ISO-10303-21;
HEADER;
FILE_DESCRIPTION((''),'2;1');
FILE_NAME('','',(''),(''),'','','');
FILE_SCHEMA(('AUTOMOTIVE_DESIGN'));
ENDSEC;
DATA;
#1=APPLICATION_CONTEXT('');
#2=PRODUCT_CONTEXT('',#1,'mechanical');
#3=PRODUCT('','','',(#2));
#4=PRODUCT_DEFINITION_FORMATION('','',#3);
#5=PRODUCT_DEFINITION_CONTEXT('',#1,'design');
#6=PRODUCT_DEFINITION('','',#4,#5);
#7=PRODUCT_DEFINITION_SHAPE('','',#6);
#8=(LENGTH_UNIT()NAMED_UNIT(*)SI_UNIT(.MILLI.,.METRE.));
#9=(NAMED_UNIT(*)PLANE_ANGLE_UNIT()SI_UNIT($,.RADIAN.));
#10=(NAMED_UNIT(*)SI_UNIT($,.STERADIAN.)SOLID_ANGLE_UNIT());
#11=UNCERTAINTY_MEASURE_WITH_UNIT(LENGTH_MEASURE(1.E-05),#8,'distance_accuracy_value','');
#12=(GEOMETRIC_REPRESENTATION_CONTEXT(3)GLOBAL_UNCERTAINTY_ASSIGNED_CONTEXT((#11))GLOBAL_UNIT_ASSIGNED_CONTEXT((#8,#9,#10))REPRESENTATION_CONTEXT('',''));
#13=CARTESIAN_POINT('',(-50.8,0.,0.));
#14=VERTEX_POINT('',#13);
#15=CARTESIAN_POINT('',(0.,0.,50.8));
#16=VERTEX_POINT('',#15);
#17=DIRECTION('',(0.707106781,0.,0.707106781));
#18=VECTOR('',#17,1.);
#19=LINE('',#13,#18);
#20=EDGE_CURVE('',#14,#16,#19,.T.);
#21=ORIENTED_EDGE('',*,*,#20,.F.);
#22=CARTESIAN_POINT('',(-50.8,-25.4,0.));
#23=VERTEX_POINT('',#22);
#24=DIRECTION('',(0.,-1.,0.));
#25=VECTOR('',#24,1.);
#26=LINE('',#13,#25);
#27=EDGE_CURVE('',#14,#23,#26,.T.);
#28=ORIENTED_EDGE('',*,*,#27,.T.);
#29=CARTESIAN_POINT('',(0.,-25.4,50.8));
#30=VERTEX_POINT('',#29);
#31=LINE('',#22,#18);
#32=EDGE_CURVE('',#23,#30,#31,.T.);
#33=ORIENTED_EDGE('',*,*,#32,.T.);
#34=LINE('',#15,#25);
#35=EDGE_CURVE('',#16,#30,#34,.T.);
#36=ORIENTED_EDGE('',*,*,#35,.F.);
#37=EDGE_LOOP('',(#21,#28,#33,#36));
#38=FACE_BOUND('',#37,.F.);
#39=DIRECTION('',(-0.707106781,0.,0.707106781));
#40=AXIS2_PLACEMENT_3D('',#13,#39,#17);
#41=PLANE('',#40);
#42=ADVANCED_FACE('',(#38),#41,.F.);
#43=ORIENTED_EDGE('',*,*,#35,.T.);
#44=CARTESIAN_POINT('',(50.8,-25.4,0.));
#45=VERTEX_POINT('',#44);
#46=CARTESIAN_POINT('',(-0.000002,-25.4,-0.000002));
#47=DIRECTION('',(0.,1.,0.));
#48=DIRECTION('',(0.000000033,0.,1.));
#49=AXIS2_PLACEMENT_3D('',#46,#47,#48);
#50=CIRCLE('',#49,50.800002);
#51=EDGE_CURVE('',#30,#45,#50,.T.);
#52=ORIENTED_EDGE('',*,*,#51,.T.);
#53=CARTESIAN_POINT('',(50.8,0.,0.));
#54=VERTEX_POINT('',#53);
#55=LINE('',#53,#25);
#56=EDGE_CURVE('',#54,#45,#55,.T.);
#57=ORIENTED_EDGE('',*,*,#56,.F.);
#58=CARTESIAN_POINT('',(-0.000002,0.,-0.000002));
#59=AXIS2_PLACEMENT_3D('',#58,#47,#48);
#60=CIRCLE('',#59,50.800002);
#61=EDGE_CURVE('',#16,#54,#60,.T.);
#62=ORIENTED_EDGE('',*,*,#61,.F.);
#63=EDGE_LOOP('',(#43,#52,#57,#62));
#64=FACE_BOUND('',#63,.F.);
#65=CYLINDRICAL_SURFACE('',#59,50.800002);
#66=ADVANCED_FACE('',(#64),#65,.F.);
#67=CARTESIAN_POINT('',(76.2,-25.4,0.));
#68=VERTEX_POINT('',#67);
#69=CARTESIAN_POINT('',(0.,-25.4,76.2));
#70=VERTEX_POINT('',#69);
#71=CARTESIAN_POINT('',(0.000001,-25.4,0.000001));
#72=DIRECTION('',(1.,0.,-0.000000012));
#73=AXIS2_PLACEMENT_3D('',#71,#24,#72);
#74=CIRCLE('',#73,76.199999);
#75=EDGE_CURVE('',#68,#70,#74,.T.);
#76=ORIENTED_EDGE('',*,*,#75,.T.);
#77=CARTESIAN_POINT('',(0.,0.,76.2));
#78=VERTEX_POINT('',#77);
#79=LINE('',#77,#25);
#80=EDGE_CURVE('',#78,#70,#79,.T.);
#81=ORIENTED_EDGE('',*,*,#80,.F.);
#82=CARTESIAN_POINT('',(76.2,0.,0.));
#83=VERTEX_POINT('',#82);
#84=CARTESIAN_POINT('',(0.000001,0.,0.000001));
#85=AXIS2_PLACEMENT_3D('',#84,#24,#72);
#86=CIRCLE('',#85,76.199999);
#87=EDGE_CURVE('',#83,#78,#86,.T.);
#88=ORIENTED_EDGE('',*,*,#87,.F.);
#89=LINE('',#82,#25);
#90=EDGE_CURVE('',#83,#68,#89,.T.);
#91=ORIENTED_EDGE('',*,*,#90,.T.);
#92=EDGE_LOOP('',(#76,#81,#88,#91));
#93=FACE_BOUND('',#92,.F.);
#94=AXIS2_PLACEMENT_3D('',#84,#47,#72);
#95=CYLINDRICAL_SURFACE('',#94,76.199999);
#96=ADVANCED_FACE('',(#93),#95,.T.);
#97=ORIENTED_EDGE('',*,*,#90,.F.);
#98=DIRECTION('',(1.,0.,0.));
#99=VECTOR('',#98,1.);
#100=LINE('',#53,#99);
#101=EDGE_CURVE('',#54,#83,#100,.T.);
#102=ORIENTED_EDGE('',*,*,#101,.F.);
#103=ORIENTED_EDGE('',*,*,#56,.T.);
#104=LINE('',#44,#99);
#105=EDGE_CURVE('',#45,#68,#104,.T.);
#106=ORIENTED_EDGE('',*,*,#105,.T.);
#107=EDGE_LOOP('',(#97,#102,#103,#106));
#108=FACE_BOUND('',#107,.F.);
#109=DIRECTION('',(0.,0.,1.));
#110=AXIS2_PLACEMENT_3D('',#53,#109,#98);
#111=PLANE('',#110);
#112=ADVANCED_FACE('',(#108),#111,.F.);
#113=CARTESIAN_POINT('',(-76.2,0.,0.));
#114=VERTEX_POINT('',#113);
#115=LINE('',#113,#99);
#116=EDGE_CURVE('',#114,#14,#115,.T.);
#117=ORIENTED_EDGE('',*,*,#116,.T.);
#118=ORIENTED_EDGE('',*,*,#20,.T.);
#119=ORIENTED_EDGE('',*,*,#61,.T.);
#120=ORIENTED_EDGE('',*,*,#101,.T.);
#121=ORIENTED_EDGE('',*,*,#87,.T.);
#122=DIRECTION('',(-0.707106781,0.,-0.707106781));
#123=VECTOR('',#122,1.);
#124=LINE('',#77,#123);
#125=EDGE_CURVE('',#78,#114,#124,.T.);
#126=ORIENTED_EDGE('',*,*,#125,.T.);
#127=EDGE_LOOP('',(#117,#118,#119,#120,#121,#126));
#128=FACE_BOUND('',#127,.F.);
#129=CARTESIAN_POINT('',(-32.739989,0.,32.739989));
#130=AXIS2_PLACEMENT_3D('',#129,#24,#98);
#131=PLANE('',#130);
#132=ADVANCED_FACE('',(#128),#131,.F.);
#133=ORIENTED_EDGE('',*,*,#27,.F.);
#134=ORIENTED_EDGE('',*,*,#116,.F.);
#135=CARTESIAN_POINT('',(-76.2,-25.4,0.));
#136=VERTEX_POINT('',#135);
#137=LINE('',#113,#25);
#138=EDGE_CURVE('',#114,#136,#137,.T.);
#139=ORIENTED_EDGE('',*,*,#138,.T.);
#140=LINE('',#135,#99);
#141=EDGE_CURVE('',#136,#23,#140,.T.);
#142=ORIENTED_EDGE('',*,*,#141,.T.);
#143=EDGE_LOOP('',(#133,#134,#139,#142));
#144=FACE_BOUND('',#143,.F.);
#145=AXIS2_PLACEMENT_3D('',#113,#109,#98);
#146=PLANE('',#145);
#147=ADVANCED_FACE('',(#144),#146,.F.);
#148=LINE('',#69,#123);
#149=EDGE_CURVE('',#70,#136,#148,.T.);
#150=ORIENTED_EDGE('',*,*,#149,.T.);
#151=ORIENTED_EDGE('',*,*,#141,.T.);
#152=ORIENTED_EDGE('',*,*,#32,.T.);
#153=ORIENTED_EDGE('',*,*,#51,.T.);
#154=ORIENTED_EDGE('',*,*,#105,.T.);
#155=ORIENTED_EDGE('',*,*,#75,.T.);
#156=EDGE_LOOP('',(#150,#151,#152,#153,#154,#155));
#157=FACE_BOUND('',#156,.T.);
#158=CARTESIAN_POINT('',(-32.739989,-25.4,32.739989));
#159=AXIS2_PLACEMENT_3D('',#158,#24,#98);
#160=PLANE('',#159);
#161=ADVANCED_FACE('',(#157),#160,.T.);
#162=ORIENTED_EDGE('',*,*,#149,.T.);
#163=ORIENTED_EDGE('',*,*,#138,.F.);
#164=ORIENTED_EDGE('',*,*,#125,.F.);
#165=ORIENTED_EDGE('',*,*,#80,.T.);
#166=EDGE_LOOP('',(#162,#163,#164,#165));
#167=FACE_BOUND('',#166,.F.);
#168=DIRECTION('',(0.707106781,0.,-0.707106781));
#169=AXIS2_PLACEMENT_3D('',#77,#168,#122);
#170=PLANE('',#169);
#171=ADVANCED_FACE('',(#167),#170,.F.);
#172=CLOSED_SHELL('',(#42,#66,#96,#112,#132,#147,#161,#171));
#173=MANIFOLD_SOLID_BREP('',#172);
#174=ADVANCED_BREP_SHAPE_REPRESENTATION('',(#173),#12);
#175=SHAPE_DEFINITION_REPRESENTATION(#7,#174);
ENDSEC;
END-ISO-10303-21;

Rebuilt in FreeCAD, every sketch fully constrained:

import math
import FreeCAD as App
import Part
import Sketcher
Q = App.Units.Quantity

doc = App.newDocument("Part")
body = doc.addObject("PartDesign::Body", "Body")

# Sketch on XZ plane
sketch1 = doc.addObject("Sketcher::SketchObject", "Sketch")
body.addObject(sketch1)
sketch1.AttachmentSupport = (doc.XZ_Plane, [""])
sketch1.MapMode = "FlatFace"
sketch1.addGeometry([
    Part.LineSegment(App.Vector(-50.8, 0, 0), App.Vector(0, 50.8, 0)),  # 0
    Part.ArcOfCircle(Part.Circle(App.Vector(-0.000002, -0.000002, 0), App.Vector(0, 0, 1), 50.800002), math.radians(0.000002), math.radians(89.999998)),  # 1
    Part.LineSegment(App.Vector(50.8, 0, 0), App.Vector(76.2, 0, 0)),  # 2
    Part.ArcOfCircle(Part.Circle(App.Vector(0.000001, 0.000001, 0), App.Vector(0, 0, 1), 76.199999), math.radians(-0.000001), math.radians(90.000001)),  # 3
    Part.LineSegment(App.Vector(0, 76.2, 0), App.Vector(-76.2, 0, 0)),  # 4
    Part.LineSegment(App.Vector(-76.2, 0, 0), App.Vector(-50.8, 0, 0)),  # 5
], False)
sketch1.addConstraint([
    Sketcher.Constraint("Coincident", 0, 2, 1, 2),
    Sketcher.Constraint("Coincident", 1, 1, 2, 1),
    Sketcher.Constraint("Coincident", 2, 2, 3, 1),
    Sketcher.Constraint("Coincident", 3, 2, 4, 1),
    Sketcher.Constraint("Coincident", 4, 2, 5, 1),
    Sketcher.Constraint("Coincident", 5, 2, 0, 1),
    Sketcher.Constraint("Horizontal", 2),
    Sketcher.Constraint("Horizontal", 5),
    Sketcher.Constraint("Coincident", 1, 3, -1, 1),
    Sketcher.Constraint("Coincident", 3, 3, -1, 1),
    Sketcher.Constraint("Symmetric", 2, 2, 4, 2, -1, 1),
    Sketcher.Constraint("Symmetric", 1, 1, 5, 2, -2),
    Sketcher.Constraint("PointOnObject", 0, 2, -2),
    Sketcher.Constraint("PointOnObject", 3, 2, -2),
    Sketcher.Constraint("Radius", 1, Q("2.0000001 in")),
    Sketcher.Constraint("Radius", 3, Q("3 in")),
])
pad1 = doc.addObject("PartDesign::Pad", "Pad")
body.addObject(pad1)
pad1.Profile = sketch1
pad1.Length = Q("1 in")

doc.recompute()
